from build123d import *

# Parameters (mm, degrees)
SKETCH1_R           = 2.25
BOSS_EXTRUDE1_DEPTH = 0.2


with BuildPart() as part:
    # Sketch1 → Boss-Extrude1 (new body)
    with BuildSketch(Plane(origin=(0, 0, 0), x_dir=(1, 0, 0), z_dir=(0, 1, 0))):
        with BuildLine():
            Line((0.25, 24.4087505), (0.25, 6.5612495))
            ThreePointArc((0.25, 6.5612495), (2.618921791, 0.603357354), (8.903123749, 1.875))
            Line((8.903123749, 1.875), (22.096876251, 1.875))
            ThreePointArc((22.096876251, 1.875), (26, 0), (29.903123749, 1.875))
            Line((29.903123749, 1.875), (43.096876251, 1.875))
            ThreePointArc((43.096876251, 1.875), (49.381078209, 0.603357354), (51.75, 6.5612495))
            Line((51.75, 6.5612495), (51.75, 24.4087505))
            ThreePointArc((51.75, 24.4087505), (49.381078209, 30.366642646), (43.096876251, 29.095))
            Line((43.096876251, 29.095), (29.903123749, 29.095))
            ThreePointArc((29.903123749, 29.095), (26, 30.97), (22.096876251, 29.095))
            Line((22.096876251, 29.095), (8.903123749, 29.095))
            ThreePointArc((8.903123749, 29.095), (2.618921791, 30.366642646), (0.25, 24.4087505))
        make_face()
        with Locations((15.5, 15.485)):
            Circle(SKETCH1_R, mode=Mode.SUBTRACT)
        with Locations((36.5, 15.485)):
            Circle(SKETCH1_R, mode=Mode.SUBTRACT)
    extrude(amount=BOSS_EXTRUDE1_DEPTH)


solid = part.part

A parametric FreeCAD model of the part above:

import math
import FreeCAD as App
import Part
import Sketcher

V = App.Vector
Q = App.Units.Quantity

doc = App.newDocument("Part")
body = doc.addObject("PartDesign::Body", "Body")

sketch1 = doc.addObject("Sketcher::SketchObject", "Sketch")
body.addObject(sketch1)
sketch1.AttachmentSupport = (doc.XZ_Plane, [""])
sketch1.MapMode = "FlatFace"
sketch1.addGeometry([
    Part.LineSegment(V(0.2, -24.4, 0), V(0.2, -6.6, 0)),
    Part.ArcOfCircle(Part.Circle(V(5, -5, 0), V(0, 0, 1), 5), math.radians(39), math.radians(198)),
    Part.LineSegment(V(8.9, -1.9, 0), V(22.1, -1.9, 0)),
    Part.ArcOfCircle(Part.Circle(V(26, -5, 0), V(0, 0, 1), 5), math.radians(39), math.radians(141)),
    Part.LineSegment(V(29.9, -1.9, 0), V(43.1, -1.9, 0)),
    Part.ArcOfCircle(Part.Circle(V(47, -5, 0), V(0, 0, 1), 5), math.radians(-18), math.radians(141)),
    Part.LineSegment(V(51.8, -6.6, 0), V(51.8, -24.4, 0)),
    Part.ArcOfCircle(Part.Circle(V(47, -26, 0), V(0, 0, 1), 5), math.radians(-141), math.radians(18)),
    Part.LineSegment(V(43.1, -29.1, 0), V(29.9, -29.1, 0)),
    Part.ArcOfCircle(Part.Circle(V(26, -26, 0), V(0, 0, 1), 5), math.radians(-141), math.radians(-39)),
    Part.LineSegment(V(22.1, -29.1, 0), V(8.9, -29.1, 0)),
    Part.ArcOfCircle(Part.Circle(V(5, -26, 0), V(0, 0, 1), 5), math.radians(162), math.radians(321)),
    Part.Circle(V(15.5, -15.5, 0), V(0, 0, 1), 2.2),
    Part.Circle(V(36.5, -15.5, 0), V(0, 0, 1), 2.2),
], False)
sketch1.addConstraint([
    Sketcher.Constraint("Coincident", 0, 2, 1, 2),
    Sketcher.Constraint("Coincident", 1, 1, 2, 1),
    Sketcher.Constraint("Coincident", 2, 2, 3, 2),
    Sketcher.Constraint("Coincident", 3, 1, 4, 1),
    Sketcher.Constraint("Coincident", 4, 2, 5, 2),
    Sketcher.Constraint("Coincident", 5, 1, 6, 1),
    Sketcher.Constraint("Coincident", 6, 2, 7, 2),
    Sketcher.Constraint("Coincident", 7, 1, 8, 1),
    Sketcher.Constraint("Coincident", 8, 2, 9, 2),
    Sketcher.Constraint("Coincident", 9, 1, 10, 1),
    Sketcher.Constraint("Coincident", 10, 2, 11, 2),
    Sketcher.Constraint("Coincident", 11, 1, 0, 1),
    Sketcher.Constraint("Vertical", 0),
    Sketcher.Constraint("Horizontal", 2),
    Sketcher.Constraint("Horizontal", 4),
    Sketcher.Constraint("Vertical", 6),
    Sketcher.Constraint("Horizontal", 8),
    Sketcher.Constraint("Horizontal", 10),
    Sketcher.Constraint("Equal", 1, 3),
    Sketcher.Constraint("Equal", 3, 5),
    Sketcher.Constraint("Equal", 5, 7),
    Sketcher.Constraint("Equal", 7, 9),
    Sketcher.Constraint("Equal", 9, 11),
    Sketcher.Constraint("Equal", 12, 13),
    Sketcher.Constraint("Horizontal", 1, 3, 3, 3),
    Sketcher.Constraint("Horizontal", 3, 3, 5, 3),
    Sketcher.Constraint("Horizontal", 7, 3, 9, 3),
    Sketcher.Constraint("Horizontal", 9, 3, 11, 3),
    Sketcher.Constraint("Horizontal", 12, 3, 13, 3),
    Sketcher.Constraint("Horizontal", 2, 2, 3, 1),
    Sketcher.Constraint("Horizontal", 0, 2, 5, 1),
    Sketcher.Constraint("Horizontal", 8, 2, 9, 1),
    Sketcher.Constraint("Horizontal", 6, 2, 11, 1),
    Sketcher.Constraint("Vertical", 5, 3, 7, 3),
    Sketcher.Constraint("Vertical", 3, 3, 9, 3),
    Sketcher.Constraint("Vertical", 4, 2, 7, 1),
    Sketcher.Constraint("Equal", 2, 4),
    Sketcher.Constraint("Radius", 1, Q("5 mm")),
    Sketcher.Constraint("Diameter", 12, Q("4.5 mm")),
    Sketcher.Constraint("DistanceX", -1, 1, 1, 3, Q("5 mm")),
    Sketcher.Constraint("DistanceY", 1, 3, -1, 1, Q("5 mm")),
    Sketcher.Constraint("DistanceX", -1, 1, 3, 3, Q("26 mm")),
    Sketcher.Constraint("DistanceX", 12, 3, 13, 3, Q("21 mm")),
    Sketcher.Constraint("DistanceX", -1, 1, 12, 3, Q("15.5 mm")),
    Sketcher.Constraint("DistanceY", 7, 3, -1, 1, Q("25.97 mm")),
    Sketcher.Constraint("DistanceX", -1, 1, 0, 2, Q("0.25 mm")),
    Sketcher.Constraint("DistanceY", 12, 3, 1, 1, Q("13.61 mm")),
    Sketcher.Constraint("DistanceY", 7, 1, 13, 3, Q("13.61 mm")),
])
pad1 = doc.addObject("PartDesign::Pad", "Pad")
body.addObject(pad1)
pad1.Profile = sketch1
pad1.Length = 0.2
pad1.Reversed = True

doc.recompute()
